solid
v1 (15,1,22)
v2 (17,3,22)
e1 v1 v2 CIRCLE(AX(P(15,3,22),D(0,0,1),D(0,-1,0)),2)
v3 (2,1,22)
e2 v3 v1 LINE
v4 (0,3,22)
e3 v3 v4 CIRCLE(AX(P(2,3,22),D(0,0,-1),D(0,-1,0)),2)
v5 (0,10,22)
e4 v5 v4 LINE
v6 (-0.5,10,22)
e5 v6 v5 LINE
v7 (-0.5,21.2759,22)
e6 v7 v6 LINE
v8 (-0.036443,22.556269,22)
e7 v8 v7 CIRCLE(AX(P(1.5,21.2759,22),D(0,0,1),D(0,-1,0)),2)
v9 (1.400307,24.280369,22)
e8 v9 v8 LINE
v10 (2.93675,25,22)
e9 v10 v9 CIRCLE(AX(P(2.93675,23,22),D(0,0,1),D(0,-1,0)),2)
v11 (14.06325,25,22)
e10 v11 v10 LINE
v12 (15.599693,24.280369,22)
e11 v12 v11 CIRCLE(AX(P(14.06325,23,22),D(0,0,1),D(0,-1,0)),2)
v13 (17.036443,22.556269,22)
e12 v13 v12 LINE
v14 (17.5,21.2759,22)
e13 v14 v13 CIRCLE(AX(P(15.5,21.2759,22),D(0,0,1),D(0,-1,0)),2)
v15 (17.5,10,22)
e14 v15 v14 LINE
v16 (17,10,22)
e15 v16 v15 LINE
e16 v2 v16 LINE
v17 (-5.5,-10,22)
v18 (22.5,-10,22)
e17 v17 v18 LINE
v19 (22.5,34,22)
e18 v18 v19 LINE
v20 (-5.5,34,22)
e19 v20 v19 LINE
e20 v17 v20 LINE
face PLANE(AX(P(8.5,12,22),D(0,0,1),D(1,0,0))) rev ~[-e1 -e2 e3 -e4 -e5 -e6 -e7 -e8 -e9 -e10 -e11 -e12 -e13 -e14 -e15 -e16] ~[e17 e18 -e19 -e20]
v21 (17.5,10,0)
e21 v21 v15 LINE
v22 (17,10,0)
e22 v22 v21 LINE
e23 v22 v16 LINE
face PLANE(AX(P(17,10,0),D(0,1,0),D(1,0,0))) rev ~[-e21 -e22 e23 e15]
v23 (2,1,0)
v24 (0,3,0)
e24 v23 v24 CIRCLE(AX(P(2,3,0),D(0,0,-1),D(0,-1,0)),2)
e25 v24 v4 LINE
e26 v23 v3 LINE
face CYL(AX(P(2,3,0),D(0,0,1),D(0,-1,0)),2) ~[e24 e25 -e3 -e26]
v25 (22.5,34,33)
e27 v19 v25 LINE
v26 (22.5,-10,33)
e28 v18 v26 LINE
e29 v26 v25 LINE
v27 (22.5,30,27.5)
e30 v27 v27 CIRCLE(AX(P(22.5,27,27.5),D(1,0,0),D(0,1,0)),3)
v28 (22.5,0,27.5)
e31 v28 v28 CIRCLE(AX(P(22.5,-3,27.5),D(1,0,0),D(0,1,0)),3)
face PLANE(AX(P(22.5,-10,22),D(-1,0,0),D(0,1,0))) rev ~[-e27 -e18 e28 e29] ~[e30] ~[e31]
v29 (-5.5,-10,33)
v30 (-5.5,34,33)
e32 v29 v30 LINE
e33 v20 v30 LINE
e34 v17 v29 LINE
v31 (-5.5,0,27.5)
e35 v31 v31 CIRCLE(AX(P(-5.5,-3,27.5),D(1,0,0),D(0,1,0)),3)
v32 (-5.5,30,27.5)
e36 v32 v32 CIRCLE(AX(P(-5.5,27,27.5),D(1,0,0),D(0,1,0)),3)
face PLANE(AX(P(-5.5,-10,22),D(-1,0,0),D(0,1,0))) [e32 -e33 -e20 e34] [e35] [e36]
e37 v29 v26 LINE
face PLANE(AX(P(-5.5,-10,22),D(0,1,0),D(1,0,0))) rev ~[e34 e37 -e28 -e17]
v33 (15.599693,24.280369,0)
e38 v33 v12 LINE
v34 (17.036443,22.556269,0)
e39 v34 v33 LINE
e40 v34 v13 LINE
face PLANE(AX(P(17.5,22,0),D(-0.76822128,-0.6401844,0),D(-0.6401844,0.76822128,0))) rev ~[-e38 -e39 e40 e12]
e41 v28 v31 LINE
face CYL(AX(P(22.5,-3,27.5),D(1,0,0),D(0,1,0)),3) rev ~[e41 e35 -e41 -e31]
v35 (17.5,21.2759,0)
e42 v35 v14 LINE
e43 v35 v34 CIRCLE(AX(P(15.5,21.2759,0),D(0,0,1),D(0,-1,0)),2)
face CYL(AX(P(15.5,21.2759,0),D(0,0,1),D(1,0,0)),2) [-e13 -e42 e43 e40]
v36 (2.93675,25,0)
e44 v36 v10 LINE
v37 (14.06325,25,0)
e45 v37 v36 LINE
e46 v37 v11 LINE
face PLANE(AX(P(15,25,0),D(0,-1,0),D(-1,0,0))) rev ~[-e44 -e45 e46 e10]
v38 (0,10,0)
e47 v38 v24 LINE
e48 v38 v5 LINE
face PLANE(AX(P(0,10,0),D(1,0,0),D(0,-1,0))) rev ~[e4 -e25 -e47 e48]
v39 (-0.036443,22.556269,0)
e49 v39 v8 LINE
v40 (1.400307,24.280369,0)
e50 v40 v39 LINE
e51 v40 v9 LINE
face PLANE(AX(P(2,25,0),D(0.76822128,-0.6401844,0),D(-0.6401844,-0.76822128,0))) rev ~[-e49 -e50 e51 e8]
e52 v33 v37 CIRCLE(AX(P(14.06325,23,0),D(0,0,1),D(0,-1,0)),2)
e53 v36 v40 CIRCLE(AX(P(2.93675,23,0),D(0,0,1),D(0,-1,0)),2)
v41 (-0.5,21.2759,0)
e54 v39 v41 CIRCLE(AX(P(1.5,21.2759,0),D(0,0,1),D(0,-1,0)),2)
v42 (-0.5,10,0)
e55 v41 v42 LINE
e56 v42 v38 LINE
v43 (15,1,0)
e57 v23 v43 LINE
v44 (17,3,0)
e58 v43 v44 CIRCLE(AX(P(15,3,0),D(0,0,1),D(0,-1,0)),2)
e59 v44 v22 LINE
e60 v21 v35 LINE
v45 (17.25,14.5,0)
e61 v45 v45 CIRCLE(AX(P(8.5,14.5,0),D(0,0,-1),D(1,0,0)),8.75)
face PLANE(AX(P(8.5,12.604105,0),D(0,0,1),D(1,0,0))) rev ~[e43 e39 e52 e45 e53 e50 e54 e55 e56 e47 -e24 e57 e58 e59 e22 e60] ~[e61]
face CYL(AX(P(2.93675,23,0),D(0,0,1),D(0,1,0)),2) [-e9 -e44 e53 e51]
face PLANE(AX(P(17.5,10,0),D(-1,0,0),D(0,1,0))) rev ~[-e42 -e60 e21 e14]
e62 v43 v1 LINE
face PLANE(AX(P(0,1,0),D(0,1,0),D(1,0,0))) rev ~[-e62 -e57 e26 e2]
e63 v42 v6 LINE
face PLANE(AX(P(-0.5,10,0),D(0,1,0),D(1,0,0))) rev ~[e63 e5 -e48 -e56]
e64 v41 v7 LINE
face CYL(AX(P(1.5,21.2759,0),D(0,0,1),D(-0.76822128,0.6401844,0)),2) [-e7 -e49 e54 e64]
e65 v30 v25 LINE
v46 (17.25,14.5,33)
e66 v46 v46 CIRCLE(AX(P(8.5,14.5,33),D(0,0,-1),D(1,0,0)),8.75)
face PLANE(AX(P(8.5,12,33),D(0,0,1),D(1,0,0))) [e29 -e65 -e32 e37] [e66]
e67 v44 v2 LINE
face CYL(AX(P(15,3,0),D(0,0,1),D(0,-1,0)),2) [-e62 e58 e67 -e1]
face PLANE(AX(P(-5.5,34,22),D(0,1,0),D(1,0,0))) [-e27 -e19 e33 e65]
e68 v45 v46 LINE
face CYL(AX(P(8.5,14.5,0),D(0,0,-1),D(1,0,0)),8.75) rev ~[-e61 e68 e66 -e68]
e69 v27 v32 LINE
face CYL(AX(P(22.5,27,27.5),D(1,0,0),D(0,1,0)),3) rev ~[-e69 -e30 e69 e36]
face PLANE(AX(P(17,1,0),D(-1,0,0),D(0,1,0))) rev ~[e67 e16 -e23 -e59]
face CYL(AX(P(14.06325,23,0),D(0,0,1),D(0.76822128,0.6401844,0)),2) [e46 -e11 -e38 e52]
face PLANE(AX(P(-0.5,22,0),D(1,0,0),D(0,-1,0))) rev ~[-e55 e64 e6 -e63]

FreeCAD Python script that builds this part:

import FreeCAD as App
import Part
import Sketcher

V = App.Vector


def edges_at(feature, points):
    """Names of the edges that pass closest to the given points."""
    edges = feature.Shape.Edges
    near = lambda p: min(range(len(edges)), key=lambda i: edges[i].distToShape(Part.Vertex(*p))[0])
    return sorted({f"Edge{near(p) + 1}" for p in points})


def add_polygon(sketch, points):
    """Adds a closed chain of lines whose ends are joined by coincident constraints."""
    first, n = sketch.GeometryCount, len(points)
    for a, b in zip(points, points[1:] + points[:1]):
        sketch.addGeometry(Part.LineSegment(App.Vector(*a, 0), App.Vector(*b, 0)), False)
    for i in range(n):
        sketch.addConstraint(Sketcher.Constraint("Coincident", first + i, 2, first + (i + 1) % n, 1))

doc = App.newDocument("Part")
body = doc.addObject("PartDesign::Body", "Body")

# Sketch on XY plane
sketch1 = body.newObject("Sketcher::SketchObject", "Sketch")
sketch1.AttachmentSupport = (doc.getObject("XY_Plane"), [""])
sketch1.MapMode = "FlatFace"
add_polygon(sketch1, [(0, 1), (17, 1), (17, 10), (17.5, 10), (17.5, 22), (15, 25), (2, 25), (-0.5, 22), (-0.5, 10), (0, 10)])  # lines 0-9
sketch1.addConstraint([
    Sketcher.Constraint("Horizontal", 0),
    Sketcher.Constraint("Vertical", 1),
    Sketcher.Constraint("Horizontal", 2),
    Sketcher.Constraint("Vertical", 3),
    Sketcher.Constraint("Horizontal", 5),
    Sketcher.Constraint("Vertical", 7),
    Sketcher.Constraint("Horizontal", 8),
    Sketcher.Constraint("Vertical", 9),
    Sketcher.Constraint("PointOnObject", 8, 2, -2),
    Sketcher.Constraint("Horizontal", 3, 2, 6, 2),
    Sketcher.Constraint("Horizontal", 2, 2, 7, 2),
    Sketcher.Constraint("Equal", 2, 8),
    Sketcher.Constraint("Equal", 4, 6),
    Sketcher.Constraint("DistanceX", 0, 1, 0, 2, 17.0),
    Sketcher.Constraint("DistanceX", 5, 2, 5, 1, 13.0),
    Sketcher.Constraint("DistanceY", 1, 1, 1, 2, 9.0),
    Sketcher.Constraint("DistanceY", 3, 1, 3, 2, 12.0),
    Sketcher.Constraint("DistanceX", 2, 1, 2, 2, 0.5),
    Sketcher.Constraint("DistanceY", -1, 1, 0, 2, 1.0),
    Sketcher.Constraint("DistanceY", -1, 1, 4, 2, 25.0),
])
pad1 = body.newObject("PartDesign::Pad", "Pad")
pad1.Profile = sketch1
pad1.Length = 22

# Sketch on XY plane
sketch2 = body.newObject("Sketcher::SketchObject", "Sketch001")
sketch2.AttachmentSupport = (doc.getObject("XY_Plane"), [""])
sketch2.MapMode = "FlatFace"
sketch2.AttachmentOffset = App.Placement(V(0, 0, 22), App.Rotation())
add_polygon(sketch2, [(-5.5, 34), (-5.5, -10), (22.5, -10), (22.5, 34)])  # lines 0-3
sketch2.addConstraint([
    Sketcher.Constraint("Vertical", 0),
    Sketcher.Constraint("Horizontal", 1),
    Sketcher.Constraint("Vertical", 2),
    Sketcher.Constraint("Horizontal", 3),
    Sketcher.Constraint("DistanceX", 1, 1, 1, 2, 28.0),
    Sketcher.Constraint("DistanceY", 0, 2, 0, 1, 44.0),
    Sketcher.Constraint("DistanceY", 0, 2, -1, 1, 10.0),
    Sketcher.Constraint("DistanceX", 0, 2, -1, 1, 5.5),
])
pad2 = body.newObject("PartDesign::Pad", "Pad001")
pad2.Profile = sketch2
pad2.Length = 11

# Sketch on XY plane
sketch3 = body.newObject("Sketcher::SketchObject", "Sketch002")
sketch3.AttachmentSupport = (doc.getObject("XY_Plane"), [""])
sketch3.MapMode = "FlatFace"
sketch3.addGeometry(Part.Circle(V(8.5, 14.5, 0), V(0, 0, 1), 8.75), False)
sketch3.addConstraint([
    Sketcher.Constraint("Diameter", 0, 17.5),
    Sketcher.Constraint("DistanceX", -1, 1, 0, 3, 8.5),
    Sketcher.Constraint("DistanceY", -1, 1, 0, 3, 14.5),
])
pocket1 = body.newObject("PartDesign::Pocket", "Pocket")
pocket1.Profile = sketch3
pocket1.Length = 33
pocket1.Reversed = True
doc.recompute()

fillet = body.newObject("PartDesign::Fillet", "Fillet")
fillet.Base = (pocket1, edges_at(pocket1, [
    (17.5, 22, 11),
    (15, 25, 11),
    (2, 25, 11),
    (17, 1, 11),
    (0, 1, 11),
    (-0.5, 22, 11),
]))
fillet.Radius = 2

# Sketch on YZ plane
sketch4 = body.newObject("Sketcher::SketchObject", "Sketch003")
sketch4.AttachmentSupport = (doc.getObject("YZ_Plane"), [""])
sketch4.MapMode = "FlatFace"
sketch4.AttachmentOffset = App.Placement(V(0, 0, 22.5), App.Rotation())
sketch4.addGeometry([
    Part.Circle(V(-3, 27.5, 0), V(0, 0, 1), 3),
    Part.Circle(V(27, 27.5, 0), V(0, 0, 1), 3),
], False)
sketch4.addConstraint([
    Sketcher.Constraint("Equal", 0, 1),
    Sketcher.Constraint("Horizontal", 0, 3, 1, 3),
    Sketcher.Constraint("Diameter", 0, 6.0),
    Sketcher.Constraint("DistanceX", 0, 3, -1, 1, 3.0),
    Sketcher.Constraint("DistanceX", -1, 1, 1, 3, 27.0),
    Sketcher.Constraint("DistanceY", -1, 1, 0, 3, 27.5),
])
pocket2 = body.newObject("PartDesign::Pocket", "Pocket001")
pocket2.Profile = sketch4
pocket2.Type = "ThroughAll"

doc.recompute()
